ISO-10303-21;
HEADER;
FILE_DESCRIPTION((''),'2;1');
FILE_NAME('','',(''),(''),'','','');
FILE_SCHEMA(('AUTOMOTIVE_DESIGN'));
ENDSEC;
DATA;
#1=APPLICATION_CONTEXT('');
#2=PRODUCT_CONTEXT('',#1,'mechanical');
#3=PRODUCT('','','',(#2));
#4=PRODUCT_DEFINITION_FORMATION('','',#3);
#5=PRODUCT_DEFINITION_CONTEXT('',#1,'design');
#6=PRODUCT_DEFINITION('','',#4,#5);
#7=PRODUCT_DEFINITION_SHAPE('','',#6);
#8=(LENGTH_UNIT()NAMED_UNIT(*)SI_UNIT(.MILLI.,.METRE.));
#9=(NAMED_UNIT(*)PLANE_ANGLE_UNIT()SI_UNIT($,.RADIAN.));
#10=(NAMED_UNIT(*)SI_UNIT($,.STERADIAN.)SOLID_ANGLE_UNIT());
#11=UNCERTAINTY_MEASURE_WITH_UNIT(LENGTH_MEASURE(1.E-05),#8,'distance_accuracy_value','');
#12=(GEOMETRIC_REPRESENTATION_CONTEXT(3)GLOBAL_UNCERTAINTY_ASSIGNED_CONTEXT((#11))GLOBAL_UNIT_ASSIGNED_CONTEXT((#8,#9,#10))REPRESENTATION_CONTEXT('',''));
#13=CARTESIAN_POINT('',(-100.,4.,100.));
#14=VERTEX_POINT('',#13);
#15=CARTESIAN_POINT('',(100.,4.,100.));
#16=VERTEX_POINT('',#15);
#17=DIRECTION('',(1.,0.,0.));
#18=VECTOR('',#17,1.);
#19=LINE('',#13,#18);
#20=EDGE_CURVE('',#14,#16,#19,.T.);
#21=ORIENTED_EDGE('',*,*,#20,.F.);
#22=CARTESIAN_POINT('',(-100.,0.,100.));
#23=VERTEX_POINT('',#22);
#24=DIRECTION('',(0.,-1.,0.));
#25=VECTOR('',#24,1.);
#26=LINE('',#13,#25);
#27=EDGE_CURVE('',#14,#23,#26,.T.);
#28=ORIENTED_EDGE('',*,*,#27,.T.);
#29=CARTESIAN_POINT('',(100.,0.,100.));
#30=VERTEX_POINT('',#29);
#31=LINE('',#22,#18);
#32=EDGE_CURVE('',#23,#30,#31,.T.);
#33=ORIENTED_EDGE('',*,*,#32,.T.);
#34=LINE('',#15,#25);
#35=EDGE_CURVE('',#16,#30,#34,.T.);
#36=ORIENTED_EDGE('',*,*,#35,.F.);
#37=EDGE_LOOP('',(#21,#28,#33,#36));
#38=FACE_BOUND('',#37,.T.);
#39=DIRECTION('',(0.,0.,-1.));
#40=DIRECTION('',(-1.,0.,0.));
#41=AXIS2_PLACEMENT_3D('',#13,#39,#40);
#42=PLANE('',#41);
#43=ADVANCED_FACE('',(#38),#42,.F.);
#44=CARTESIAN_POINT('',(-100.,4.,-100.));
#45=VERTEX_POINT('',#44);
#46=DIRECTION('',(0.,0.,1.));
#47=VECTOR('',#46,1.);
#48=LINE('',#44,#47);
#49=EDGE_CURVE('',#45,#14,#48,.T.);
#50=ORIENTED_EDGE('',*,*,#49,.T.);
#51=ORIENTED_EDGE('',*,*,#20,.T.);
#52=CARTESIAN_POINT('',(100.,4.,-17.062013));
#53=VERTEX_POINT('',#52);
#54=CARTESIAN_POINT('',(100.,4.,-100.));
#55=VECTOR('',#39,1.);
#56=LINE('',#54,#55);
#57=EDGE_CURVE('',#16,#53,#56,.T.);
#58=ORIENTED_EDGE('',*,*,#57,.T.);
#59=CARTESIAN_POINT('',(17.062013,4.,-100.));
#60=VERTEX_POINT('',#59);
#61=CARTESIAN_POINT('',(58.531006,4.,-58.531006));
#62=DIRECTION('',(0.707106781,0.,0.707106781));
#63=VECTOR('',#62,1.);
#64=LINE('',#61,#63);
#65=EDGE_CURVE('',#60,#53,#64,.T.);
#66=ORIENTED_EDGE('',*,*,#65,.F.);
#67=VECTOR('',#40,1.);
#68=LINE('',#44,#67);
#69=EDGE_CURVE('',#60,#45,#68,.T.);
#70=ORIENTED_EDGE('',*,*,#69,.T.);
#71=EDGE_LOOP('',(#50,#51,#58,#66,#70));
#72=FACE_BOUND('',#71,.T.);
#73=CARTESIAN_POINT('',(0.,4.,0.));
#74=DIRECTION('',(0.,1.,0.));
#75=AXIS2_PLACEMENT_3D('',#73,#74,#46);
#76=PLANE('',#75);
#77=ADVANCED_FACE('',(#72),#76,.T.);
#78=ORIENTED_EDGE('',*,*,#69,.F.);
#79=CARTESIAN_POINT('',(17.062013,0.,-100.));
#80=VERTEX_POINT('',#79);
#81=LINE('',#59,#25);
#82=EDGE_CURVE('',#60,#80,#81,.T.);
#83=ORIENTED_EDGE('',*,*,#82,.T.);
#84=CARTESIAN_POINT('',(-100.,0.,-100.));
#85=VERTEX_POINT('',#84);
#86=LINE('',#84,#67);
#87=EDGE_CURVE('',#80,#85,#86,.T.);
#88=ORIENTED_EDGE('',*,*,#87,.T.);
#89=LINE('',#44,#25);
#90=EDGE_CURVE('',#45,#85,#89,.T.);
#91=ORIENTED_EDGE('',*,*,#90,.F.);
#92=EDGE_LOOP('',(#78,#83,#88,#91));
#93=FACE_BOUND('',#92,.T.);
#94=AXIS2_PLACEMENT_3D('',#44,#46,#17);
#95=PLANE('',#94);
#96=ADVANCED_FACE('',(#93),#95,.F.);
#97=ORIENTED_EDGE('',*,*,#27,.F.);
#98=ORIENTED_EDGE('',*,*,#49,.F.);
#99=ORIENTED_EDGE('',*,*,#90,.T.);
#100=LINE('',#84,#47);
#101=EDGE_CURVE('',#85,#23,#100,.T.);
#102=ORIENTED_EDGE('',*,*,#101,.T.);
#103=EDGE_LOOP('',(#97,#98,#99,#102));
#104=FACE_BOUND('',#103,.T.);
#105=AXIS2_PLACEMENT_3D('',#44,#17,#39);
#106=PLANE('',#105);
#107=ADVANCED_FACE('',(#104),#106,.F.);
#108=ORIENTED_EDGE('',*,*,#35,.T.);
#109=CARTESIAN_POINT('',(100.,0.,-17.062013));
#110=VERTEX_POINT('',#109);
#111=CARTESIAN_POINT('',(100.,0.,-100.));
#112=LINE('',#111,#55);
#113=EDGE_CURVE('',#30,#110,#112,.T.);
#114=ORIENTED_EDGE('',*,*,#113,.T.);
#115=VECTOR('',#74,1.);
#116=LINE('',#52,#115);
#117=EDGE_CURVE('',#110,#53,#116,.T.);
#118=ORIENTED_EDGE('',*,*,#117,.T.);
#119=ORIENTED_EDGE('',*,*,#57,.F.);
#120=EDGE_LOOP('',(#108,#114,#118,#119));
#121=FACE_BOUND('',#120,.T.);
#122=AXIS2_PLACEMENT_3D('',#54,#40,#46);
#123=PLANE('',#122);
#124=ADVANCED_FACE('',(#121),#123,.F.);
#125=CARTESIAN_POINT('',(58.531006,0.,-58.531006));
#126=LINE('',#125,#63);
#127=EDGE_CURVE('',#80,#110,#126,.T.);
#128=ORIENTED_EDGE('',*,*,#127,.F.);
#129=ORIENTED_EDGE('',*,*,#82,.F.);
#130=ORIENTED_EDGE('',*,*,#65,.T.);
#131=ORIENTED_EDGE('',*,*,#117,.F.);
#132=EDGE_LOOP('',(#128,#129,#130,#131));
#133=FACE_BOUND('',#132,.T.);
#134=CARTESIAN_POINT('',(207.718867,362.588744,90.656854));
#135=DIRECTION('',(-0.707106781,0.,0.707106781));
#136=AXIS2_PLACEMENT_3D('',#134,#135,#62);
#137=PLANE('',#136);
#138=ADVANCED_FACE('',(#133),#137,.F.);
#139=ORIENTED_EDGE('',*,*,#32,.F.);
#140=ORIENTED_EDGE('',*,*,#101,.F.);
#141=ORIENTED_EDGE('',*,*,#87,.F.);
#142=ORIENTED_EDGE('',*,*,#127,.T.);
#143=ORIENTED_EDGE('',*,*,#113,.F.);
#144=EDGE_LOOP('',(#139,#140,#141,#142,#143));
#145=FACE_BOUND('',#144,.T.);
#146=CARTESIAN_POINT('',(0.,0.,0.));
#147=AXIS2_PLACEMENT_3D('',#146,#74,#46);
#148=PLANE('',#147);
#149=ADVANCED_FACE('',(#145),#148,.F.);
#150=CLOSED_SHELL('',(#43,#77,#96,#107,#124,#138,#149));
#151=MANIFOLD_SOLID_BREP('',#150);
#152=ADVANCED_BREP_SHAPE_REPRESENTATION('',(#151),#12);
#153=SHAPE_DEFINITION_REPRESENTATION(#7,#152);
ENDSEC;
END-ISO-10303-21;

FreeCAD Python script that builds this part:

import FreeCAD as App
import Part
import Sketcher
Q = App.Units.Quantity


def add_polygon(sketch, points):
    """Adds a closed chain of lines whose ends are joined by coincident constraints."""
    first, n = sketch.GeometryCount, len(points)
    for a, b in zip(points, points[1:] + points[:1]):
        sketch.addGeometry(Part.LineSegment(App.Vector(*a, 0), App.Vector(*b, 0)), False)
    for i in range(n):
        sketch.addConstraint(Sketcher.Constraint("Coincident", first + i, 2, first + (i + 1) % n, 1))

doc = App.newDocument("Part")
body = doc.addObject("PartDesign::Body", "Body")

# Sketch on XZ plane
sketch1 = body.newObject("Sketcher::SketchObject", "Sketch")
sketch1.AttachmentSupport = (doc.getObject("XZ_Plane"), [""])
sketch1.MapMode = "FlatFace"
add_polygon(sketch1, [(-100, -100), (-100, 100), (100, 100), (100, -100)])  # lines 0-3
sketch1.addConstraint([
    Sketcher.Constraint("Vertical", 0),
    Sketcher.Constraint("Horizontal", 1),
    Sketcher.Constraint("Vertical", 2),
    Sketcher.Constraint("Horizontal", 3),
    Sketcher.Constraint("Symmetric", 0, 2, 2, 2, -1, 1),
    Sketcher.Constraint("Equal", 3, 0),
    Sketcher.Constraint("DistanceX", 1, 1, 1, 2, 200.0),
])
pad1 = body.newObject("PartDesign::Pad", "Pad")
pad1.Profile = sketch1
pad1.Length = 4
pad1.Reversed = True

# Sketch on XZ plane
sketch2 = body.newObject("Sketcher::SketchObject", "Sketch001")
sketch2.AttachmentSupport = (doc.getObject("XZ_Plane"), [""])
sketch2.MapMode = "FlatFace"
sketch2.AttachmentOffset = App.Placement(App.Vector(0, 0, -4), App.Rotation())
add_polygon(sketch2, [(-610, -727), (727, 610), (1765, -428), (428, -1765)])  # lines 0-3
sketch2.addConstraint([
    Sketcher.Constraint("Perpendicular", 0, 1),
    Sketcher.Constraint("Perpendicular", 1, 2),
    Sketcher.Constraint("Perpendicular", 2, 3),
    Sketcher.Constraint("Angle", 0, Q("45 deg")),
    Sketcher.Constraint("DistanceY", 2, 2, 0, 2, 2374.417299),
    Sketcher.Constraint("Distance", 0, 1889.950069),
    Sketcher.Constraint("DistanceX", -1, 1, 0, 2, 726.729261),
    Sketcher.Constraint("DistanceY", -1, 1, 0, 2, 609.667249),
])
pocket1 = body.newObject("PartDesign::Pocket", "Pocket")
pocket1.Profile = sketch2
pocket1.Type = "ThroughAll"
pocket1.Midplane = True

doc.recompute()
